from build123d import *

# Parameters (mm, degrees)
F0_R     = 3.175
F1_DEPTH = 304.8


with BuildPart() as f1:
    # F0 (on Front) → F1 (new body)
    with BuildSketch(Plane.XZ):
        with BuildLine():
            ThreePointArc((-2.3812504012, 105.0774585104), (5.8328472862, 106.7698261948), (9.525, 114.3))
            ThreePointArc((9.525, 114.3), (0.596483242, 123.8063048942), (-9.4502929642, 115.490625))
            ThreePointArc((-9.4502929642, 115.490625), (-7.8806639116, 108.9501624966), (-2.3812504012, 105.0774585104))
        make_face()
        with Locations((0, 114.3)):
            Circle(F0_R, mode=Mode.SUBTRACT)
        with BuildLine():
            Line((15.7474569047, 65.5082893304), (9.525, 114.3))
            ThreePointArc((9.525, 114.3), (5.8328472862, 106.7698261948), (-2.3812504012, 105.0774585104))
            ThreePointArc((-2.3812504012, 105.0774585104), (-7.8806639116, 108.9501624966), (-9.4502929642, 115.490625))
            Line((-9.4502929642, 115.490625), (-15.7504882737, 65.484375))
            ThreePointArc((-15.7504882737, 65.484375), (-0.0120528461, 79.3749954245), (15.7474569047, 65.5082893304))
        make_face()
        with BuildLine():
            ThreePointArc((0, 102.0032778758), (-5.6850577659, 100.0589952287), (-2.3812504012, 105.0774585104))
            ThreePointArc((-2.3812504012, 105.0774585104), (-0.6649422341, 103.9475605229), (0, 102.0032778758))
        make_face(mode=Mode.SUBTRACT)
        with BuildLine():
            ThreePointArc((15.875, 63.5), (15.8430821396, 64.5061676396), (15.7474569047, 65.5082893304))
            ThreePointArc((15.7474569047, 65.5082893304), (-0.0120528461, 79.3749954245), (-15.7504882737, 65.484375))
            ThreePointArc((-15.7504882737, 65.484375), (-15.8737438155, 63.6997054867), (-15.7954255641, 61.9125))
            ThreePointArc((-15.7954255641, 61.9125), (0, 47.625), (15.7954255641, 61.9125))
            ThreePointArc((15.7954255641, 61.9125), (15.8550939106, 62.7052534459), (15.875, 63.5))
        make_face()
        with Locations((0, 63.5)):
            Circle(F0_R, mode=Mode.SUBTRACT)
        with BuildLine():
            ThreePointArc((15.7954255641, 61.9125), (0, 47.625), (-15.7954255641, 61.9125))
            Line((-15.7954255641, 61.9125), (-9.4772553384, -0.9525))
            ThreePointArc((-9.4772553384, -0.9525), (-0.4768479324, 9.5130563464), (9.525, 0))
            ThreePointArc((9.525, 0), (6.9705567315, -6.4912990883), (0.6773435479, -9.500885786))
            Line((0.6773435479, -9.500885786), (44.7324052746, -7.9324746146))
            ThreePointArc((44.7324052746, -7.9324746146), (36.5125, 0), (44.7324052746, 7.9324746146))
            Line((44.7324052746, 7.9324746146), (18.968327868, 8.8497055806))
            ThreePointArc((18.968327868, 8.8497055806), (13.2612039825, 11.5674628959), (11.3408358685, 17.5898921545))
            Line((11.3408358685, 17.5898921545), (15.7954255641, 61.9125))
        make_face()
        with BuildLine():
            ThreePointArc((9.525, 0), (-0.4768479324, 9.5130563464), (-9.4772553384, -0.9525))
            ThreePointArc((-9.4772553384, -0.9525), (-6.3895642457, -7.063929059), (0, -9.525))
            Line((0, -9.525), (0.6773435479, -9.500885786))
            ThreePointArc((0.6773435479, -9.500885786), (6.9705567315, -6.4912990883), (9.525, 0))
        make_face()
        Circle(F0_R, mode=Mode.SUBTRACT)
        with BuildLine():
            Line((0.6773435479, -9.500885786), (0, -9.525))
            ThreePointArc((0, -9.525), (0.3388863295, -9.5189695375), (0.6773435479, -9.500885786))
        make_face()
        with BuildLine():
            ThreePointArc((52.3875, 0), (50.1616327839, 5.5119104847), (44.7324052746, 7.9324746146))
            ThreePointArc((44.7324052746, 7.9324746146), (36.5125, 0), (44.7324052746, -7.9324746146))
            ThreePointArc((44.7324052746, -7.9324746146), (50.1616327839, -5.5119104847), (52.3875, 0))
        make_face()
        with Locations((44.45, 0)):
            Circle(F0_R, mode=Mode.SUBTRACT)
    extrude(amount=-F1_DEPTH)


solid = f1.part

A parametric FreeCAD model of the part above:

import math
import FreeCAD as App
import Part
import Sketcher
Q = App.Units.Quantity

doc = App.newDocument("Part")
params = doc.addObject("Spreadsheet::Sheet", "Params")
for row, (alias, value) in enumerate([
    ("sketch1_diameter", "0.25 in"),
    ("sketch1_diameter2", "0.25 in"),
    ("sketch1_diameter3", "0.25 in"),
    ("sketch1_diameter4", "0.25 in"),
    ("sketch1_radius", "0.375 in"),
    ("pad1_length", "12 in"),
], start=1):
    params.set(f"A{row}", alias)
    params.set(f"B{row}", "=" + value)
    params.setAlias(f"B{row}", alias)

body = doc.addObject("PartDesign::Body", "Body")

sketch1 = body.newObject("Sketcher::SketchObject", "Sketch")
sketch1.AttachmentSupport = (doc.getObject("XZ_Plane"), [""])
sketch1.MapMode = "FlatFace"
sketch1.addGeometry(Part.ArcOfCircle(Part.Circle(App.Vector(0, 114.3, 0), App.Vector(0, 0, 1), 9.525), math.radians(0), math.radians(172.819244)), False)
sketch1.addGeometry(Part.LineSegment(App.Vector(-9.450293, 115.490625, 0), App.Vector(-15.750488, 65.484375, 0)), False)
sketch1.addGeometry(Part.ArcOfCircle(Part.Circle(App.Vector(0, 63.5, 0), App.Vector(0, 0, 1), 15.875), math.radians(172.819244), math.radians(185.73917)), False)
sketch1.addGeometry(Part.LineSegment(App.Vector(-15.795426, 61.9125, 0), App.Vector(-9.477255, -0.9525, 0)), False)
sketch1.addGeometry(Part.ArcOfCircle(Part.Circle(App.Vector(0, 0, 0), App.Vector(0, 0, 1), 9.525), math.radians(-174.26083), math.radians(-90)), False)
sketch1.addGeometry(Part.ArcOfCircle(Part.Circle(App.Vector(0, 0, 0), App.Vector(0, 0, 1), 9.525), math.radians(-90), math.radians(-85.92213)), False)
sketch1.addGeometry(Part.LineSegment(App.Vector(0.677344, -9.500886, 0), App.Vector(44.732405, -7.932475, 0)), False)
sketch1.addGeometry(Part.ArcOfCircle(Part.Circle(App.Vector(44.45, 0, 0), App.Vector(0, 0, 1), 7.9375), math.radians(-87.961065), math.radians(0)), False)
sketch1.addGeometry(Part.ArcOfCircle(Part.Circle(App.Vector(44.45, 0, 0), App.Vector(0, 0, 1), 7.9375), math.radians(0), math.radians(87.961065)), False)
sketch1.addGeometry(Part.LineSegment(App.Vector(44.732405, 7.932475, 0), App.Vector(18.968328, 8.849706, 0)), False)
sketch1.addGeometry(Part.ArcOfCircle(Part.Circle(App.Vector(19.251185, 16.794872, 0), App.Vector(0, 0, 1), 7.9502), math.radians(174.26083), math.radians(267.961065)), False)
sketch1.addGeometry(Part.LineSegment(App.Vector(11.340836, 17.589892, 0), App.Vector(15.795426, 61.9125, 0)), False)
sketch1.addGeometry(Part.ArcOfCircle(Part.Circle(App.Vector(0, 63.5, 0), App.Vector(0, 0, 1), 15.875), math.radians(-5.73917), math.radians(0)), False)
sketch1.addGeometry(Part.ArcOfCircle(Part.Circle(App.Vector(0, 63.5, 0), App.Vector(0, 0, 1), 15.875), math.radians(0), math.radians(7.267758)), False)
sketch1.addGeometry(Part.LineSegment(App.Vector(15.747457, 65.508289, 0), App.Vector(9.525, 114.3, 0)), False)
sketch1.addGeometry(Part.Circle(App.Vector(0, 0, 0), App.Vector(0, 0, 1), 3.175), False)
sketch1.addGeometry(Part.Circle(App.Vector(44.45, 0, 0), App.Vector(0, 0, 1), 3.175), False)
sketch1.addGeometry(Part.Circle(App.Vector(0, 63.5, 0), App.Vector(0, 0, 1), 3.175), False)
sketch1.addGeometry(Part.ArcOfCircle(Part.Circle(App.Vector(-3.175, 102.003278, 0), App.Vector(0, 0, 1), 3.175), math.radians(0), math.radians(75.522495)), False)
sketch1.addGeometry(Part.ArcOfCircle(Part.Circle(App.Vector(-3.175, 102.003278, 0), App.Vector(0, 0, 1), 3.175), math.radians(75.522495), math.radians(360)), False)
sketch1.addGeometry(Part.Circle(App.Vector(0, 114.3, 0), App.Vector(0, 0, 1), 3.175), False)
sketch1.addConstraint(Sketcher.Constraint("Coincident", 0, 2, 1, 1))
sketch1.addConstraint(Sketcher.Constraint("Coincident", 1, 2, 2, 1))
sketch1.addConstraint(Sketcher.Constraint("Coincident", 2, 2, 3, 1))
sketch1.addConstraint(Sketcher.Constraint("Coincident", 3, 2, 4, 1))
sketch1.addConstraint(Sketcher.Constraint("Coincident", 4, 2, 5, 1))
sketch1.addConstraint(Sketcher.Constraint("Coincident", 5, 2, 6, 1))
sketch1.addConstraint(Sketcher.Constraint("Coincident", 6, 2, 7, 1))
sketch1.addConstraint(Sketcher.Constraint("Coincident", 7, 2, 8, 1))
sketch1.addConstraint(Sketcher.Constraint("Coincident", 8, 2, 9, 1))
sketch1.addConstraint(Sketcher.Constraint("Coincident", 9, 2, 10, 2))
sketch1.addConstraint(Sketcher.Constraint("Coincident", 10, 1, 11, 1))
sketch1.addConstraint(Sketcher.Constraint("Coincident", 11, 2, 12, 1))
sketch1.addConstraint(Sketcher.Constraint("Coincident", 12, 2, 13, 1))
sketch1.addConstraint(Sketcher.Constraint("Coincident", 13, 2, 14, 1))
sketch1.addConstraint(Sketcher.Constraint("Coincident", 14, 2, 0, 1))
sketch1.addConstraint(Sketcher.Constraint("Coincident", 18, 1, 19, 2))
sketch1.addConstraint(Sketcher.Constraint("Coincident", 19, 1, 18, 2))
sketch1.addConstraint(Sketcher.Constraint("Coincident", 4, 3, -1, 1))
sketch1.addConstraint(Sketcher.Constraint("Coincident", 5, 3, -1, 1))
sketch1.addConstraint(Sketcher.Constraint("Coincident", 15, 3, -1, 1))
sketch1.addConstraint(Sketcher.Constraint("Coincident", 8, 3, 7, 3))
sketch1.addConstraint(Sketcher.Constraint("Coincident", 12, 3, 2, 3))
sketch1.addConstraint(Sketcher.Constraint("Coincident", 13, 3, 2, 3))
sketch1.addConstraint(Sketcher.Constraint("Coincident", 16, 3, 7, 3))
sketch1.addConstraint(Sketcher.Constraint("Coincident", 17, 3, 2, 3))
sketch1.addConstraint(Sketcher.Constraint("Coincident", 20, 3, 0, 3))
sketch1.addConstraint(Sketcher.Constraint("PointOnObject", 0, 3, -2))
sketch1.addConstraint(Sketcher.Constraint("PointOnObject", 2, 3, -2))
sketch1.addConstraint(Sketcher.Constraint("PointOnObject", 7, 3, -1))
sketch1.addConstraint(Sketcher.Constraint("PointOnObject", 4, 2, -2))
sketch1.addConstraint(Sketcher.Constraint("PointOnObject", 7, 2, -1))
sketch1.addConstraint(Sketcher.Constraint("PointOnObject", 18, 1, -2))
sketch1.addConstraint(Sketcher.Constraint("Diameter", 15, Q("0.25 in")))
sketch1.addConstraint(Sketcher.Constraint("Diameter", 16, Q("0.25 in")))
sketch1.addConstraint(Sketcher.Constraint("Diameter", 17, Q("0.25 in")))
sketch1.addConstraint(Sketcher.Constraint("Diameter", 20, Q("0.25 in")))
sketch1.addConstraint(Sketcher.Constraint("Radius", 0, Q("0.375 in")))
sketch1.addConstraint(Sketcher.Constraint("Radius", 2, Q("0.625 in")))
sketch1.addConstraint(Sketcher.Constraint("Radius", 4, Q("0.375 in")))
sketch1.addConstraint(Sketcher.Constraint("Radius", 7, Q("0.3125 in")))
sketch1.addConstraint(Sketcher.Constraint("Radius", 10, Q("0.313 in")))
sketch1.addConstraint(Sketcher.Constraint("Radius", 12, Q("0.625 in")))
sketch1.addConstraint(Sketcher.Constraint("Radius", 18, Q("0.125 in")))
sketch1.addConstraint(Sketcher.Constraint("Radius", 19, Q("0.125 in")))
sketch1.addConstraint(Sketcher.Constraint("DistanceY", 2, 3, 0, 3, Q("2 in")))
sketch1.addConstraint(Sketcher.Constraint("DistanceY", -1, 1, 0, 3, Q("4.5 in")))
sketch1.addConstraint(Sketcher.Constraint("DistanceY", -1, 1, 12, 2, Q("2.5 in")))
sketch1.addConstraint(Sketcher.Constraint("DistanceY", -1, 1, 14, 2, Q("4.5 in")))
sketch1.addConstraint(Sketcher.Constraint("DistanceX", -1, 1, 7, 3, Q("1.75 in")))
sketch1.addConstraint(Sketcher.Constraint("DistanceY", -1, 1, 0, 2, Q("4.546875 in")))
sketch1.addConstraint(Sketcher.Constraint("DistanceY", -1, 1, 1, 2, Q("2.578125 in")))
sketch1.addConstraint(Sketcher.Constraint("DistanceY", -1, 1, 2, 2, Q("2.4375 in")))
sketch1.addConstraint(Sketcher.Constraint("DistanceY", -1, 1, 11, 2, Q("2.4375 in")))
sketch1.addConstraint(Sketcher.Constraint("DistanceX", 19, 1, -1, 1, Q("0.09375 in")))
sketch1.addConstraint(Sketcher.Constraint("DistanceY", 3, 2, -1, 1, Q("0.0375 in")))
sketch1.addConstraint(Sketcher.Constraint("DistanceY", 10, 3, 10, 1, Q("0.0313 in")))
sketch1.addConstraint(Sketcher.Constraint("Distance", 9, 25.780399))
sketch1.addConstraint(Sketcher.Constraint("DistanceX", 3, 2, 5, 2, 10.154599))
sketch1.addConstraint(Sketcher.Constraint("Distance", 6, 44.082972))
sketch1.addConstraint(Sketcher.Constraint("Distance", 14, 49.186888))
sketch1.addConstraint(Sketcher.Constraint("DistanceY", -1, 1, 19, 1, 105.077459))
sketch1.addConstraint(Sketcher.Constraint("DistanceX", 3, 2, 10, 3, 28.72844))
sketch1.addConstraint(Sketcher.Constraint("DistanceY", 6, 2, 8, 2, 15.864949))
sketch1.addConstraint(Sketcher.Constraint("DistanceY", 8, 2, 9, 2, 0.917231))
sketch1.addConstraint(Sketcher.Constraint("DistanceY", 18, 1, 19, 1, 3.074181))
sketch1.setExpression("Constraints[32]", "Params.sketch1_diameter")
sketch1.setExpression("Constraints[33]", "Params.sketch1_diameter2")
sketch1.setExpression("Constraints[34]", "Params.sketch1_diameter3")
sketch1.setExpression("Constraints[35]", "Params.sketch1_diameter4")
sketch1.setExpression("Constraints[36]", "Params.sketch1_radius")
pad1 = body.newObject("PartDesign::Pad", "Pad")
pad1.Profile = sketch1
pad1.setExpression("Length", "Params.pad1_length")
pad1.Reversed = True

doc.recompute()
